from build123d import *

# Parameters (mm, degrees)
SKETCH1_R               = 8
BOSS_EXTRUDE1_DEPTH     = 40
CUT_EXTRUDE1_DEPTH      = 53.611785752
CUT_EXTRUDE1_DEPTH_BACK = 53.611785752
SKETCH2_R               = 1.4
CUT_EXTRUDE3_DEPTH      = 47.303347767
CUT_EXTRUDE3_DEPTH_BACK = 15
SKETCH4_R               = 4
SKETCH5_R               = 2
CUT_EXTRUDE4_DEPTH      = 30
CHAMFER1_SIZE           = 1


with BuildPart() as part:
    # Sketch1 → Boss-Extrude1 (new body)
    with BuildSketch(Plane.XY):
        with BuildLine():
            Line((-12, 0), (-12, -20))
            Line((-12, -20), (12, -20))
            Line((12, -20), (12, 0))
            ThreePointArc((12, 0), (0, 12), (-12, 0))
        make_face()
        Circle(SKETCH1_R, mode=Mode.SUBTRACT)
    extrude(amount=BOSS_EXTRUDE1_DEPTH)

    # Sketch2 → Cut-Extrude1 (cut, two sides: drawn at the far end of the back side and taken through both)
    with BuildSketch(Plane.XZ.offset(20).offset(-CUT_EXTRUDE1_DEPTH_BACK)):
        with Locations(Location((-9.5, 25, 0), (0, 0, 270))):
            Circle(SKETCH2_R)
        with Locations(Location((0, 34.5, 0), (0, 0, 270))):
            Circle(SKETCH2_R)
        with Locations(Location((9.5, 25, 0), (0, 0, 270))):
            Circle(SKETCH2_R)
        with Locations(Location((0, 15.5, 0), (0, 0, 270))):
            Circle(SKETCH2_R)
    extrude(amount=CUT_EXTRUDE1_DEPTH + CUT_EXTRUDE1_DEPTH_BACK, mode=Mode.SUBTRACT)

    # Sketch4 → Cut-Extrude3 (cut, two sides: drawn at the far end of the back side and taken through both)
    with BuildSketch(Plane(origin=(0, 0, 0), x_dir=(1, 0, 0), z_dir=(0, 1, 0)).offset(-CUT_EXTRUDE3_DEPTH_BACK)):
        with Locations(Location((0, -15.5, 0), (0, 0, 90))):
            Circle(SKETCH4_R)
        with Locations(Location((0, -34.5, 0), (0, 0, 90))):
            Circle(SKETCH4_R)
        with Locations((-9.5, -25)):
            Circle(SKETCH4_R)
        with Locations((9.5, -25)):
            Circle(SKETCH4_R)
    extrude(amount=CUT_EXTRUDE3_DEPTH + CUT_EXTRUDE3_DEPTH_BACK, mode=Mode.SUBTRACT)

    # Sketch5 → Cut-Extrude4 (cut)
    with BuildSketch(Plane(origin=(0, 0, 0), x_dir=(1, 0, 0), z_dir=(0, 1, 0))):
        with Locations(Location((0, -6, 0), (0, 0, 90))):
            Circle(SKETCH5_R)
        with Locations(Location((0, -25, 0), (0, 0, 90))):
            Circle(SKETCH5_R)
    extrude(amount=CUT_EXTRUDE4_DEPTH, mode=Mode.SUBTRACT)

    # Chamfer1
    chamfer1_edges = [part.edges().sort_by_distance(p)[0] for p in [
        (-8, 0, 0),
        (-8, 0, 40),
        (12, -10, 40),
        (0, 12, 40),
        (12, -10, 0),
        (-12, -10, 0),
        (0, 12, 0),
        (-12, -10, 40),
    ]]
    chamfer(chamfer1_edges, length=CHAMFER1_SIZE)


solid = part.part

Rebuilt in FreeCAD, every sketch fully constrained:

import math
import FreeCAD as App
import Part
import Sketcher

V = App.Vector


def edges_at(feature, points):
    """Names of the edges that pass closest to the given points."""
    edges = feature.Shape.Edges
    near = lambda p: min(range(len(edges)), key=lambda i: edges[i].distToShape(Part.Vertex(*p))[0])
    return sorted({f"Edge{near(p) + 1}" for p in points})

doc = App.newDocument("Part")
body = doc.addObject("PartDesign::Body", "Body")

# Sketch on XY plane
sketch1 = body.newObject("Sketcher::SketchObject", "Sketch")
sketch1.AttachmentSupport = (doc.getObject("XY_Plane"), [""])
sketch1.MapMode = "FlatFace"
sketch1.addGeometry([
    Part.LineSegment(V(-12, 0, 0), V(-12, -20, 0)),  # 0
    Part.LineSegment(V(-12, -20, 0), V(12, -20, 0)),  # 1
    Part.LineSegment(V(12, -20, 0), V(12, 0, 0)),  # 2
    Part.ArcOfCircle(Part.Circle(V(0, 0, 0), V(0, 0, 1), 12), math.radians(0), math.radians(180)),  # 3
    Part.Circle(V(0, 0, 0), V(0, 0, 1), 8),  # 4
], False)
sketch1.addConstraint([
    Sketcher.Constraint("Coincident", 0, 2, 1, 1),
    Sketcher.Constraint("Coincident", 1, 2, 2, 1),
    Sketcher.Constraint("Tangent", 2, 2, 3, 1),
    Sketcher.Constraint("Tangent", 3, 2, 0, 1),
    Sketcher.Constraint("Vertical", 0),
    Sketcher.Constraint("Horizontal", 1),
    Sketcher.Constraint("Vertical", 2),
    Sketcher.Constraint("Coincident", 3, 3, -1, 1),
    Sketcher.Constraint("Coincident", 4, 3, -1, 1),
    Sketcher.Constraint("Diameter", 4, 16.0),
    Sketcher.Constraint("Radius", 3, 12.0),
    Sketcher.Constraint("DistanceY", 0, 2, 0, 1, 20.0),
])
pad1 = body.newObject("PartDesign::Pad", "Pad")
pad1.Profile = sketch1
pad1.Length = 40

# Sketch on XZ plane
sketch2 = body.newObject("Sketcher::SketchObject", "Sketch001")
sketch2.AttachmentSupport = (doc.getObject("XZ_Plane"), [""])
sketch2.MapMode = "FlatFace"
sketch2.AttachmentOffset = App.Placement(V(0, 0, 20), App.Rotation())
sketch2.addGeometry([
    Part.Circle(V(-9.5, 25, 0), V(0, 0, 1), 1.4),
    Part.Circle(V(0, 34.5, 0), V(0, 0, 1), 1.4),
    Part.Circle(V(9.5, 25, 0), V(0, 0, 1), 1.4),
    Part.Circle(V(0, 15.5, 0), V(0, 0, 1), 1.4),
], False)
sketch2.addConstraint([
    Sketcher.Constraint("Equal", 0, 1),
    Sketcher.Constraint("Equal", 1, 2),
    Sketcher.Constraint("Equal", 2, 3),
    Sketcher.Constraint("Symmetric", 0, 3, 2, 3, -2),
    Sketcher.Constraint("PointOnObject", 1, 3, -2),
    Sketcher.Constraint("PointOnObject", 3, 3, -2),
    Sketcher.Constraint("Diameter", 0, 2.8),
    Sketcher.Constraint("DistanceY", -1, 1, 0, 3, 25.0),
    Sketcher.Constraint("DistanceX", 0, 3, 2, 3, 19.0),
    Sketcher.Constraint("DistanceY", 3, 3, 1, 3, 19.0),
    Sketcher.Constraint("DistanceY", -1, 1, 1, 3, 34.5),
])
pocket1 = body.newObject("PartDesign::Pocket", "Pocket")
pocket1.Profile = sketch2
pocket1.Type = "ThroughAll"
pocket1.Midplane = True

# Sketch on XZ plane
sketch3 = body.newObject("Sketcher::SketchObject", "Sketch002")
sketch3.AttachmentSupport = (doc.getObject("XZ_Plane"), [""])
sketch3.MapMode = "FlatFace"
sketch3.addGeometry([
    Part.Circle(V(0, 15.5, 0), V(0, 0, 1), 4),
    Part.Circle(V(0, 34.5, 0), V(0, 0, 1), 4),
    Part.Circle(V(-9.5, 25, 0), V(0, 0, 1), 4),
    Part.Circle(V(9.5, 25, 0), V(0, 0, 1), 4),
], False)
sketch3.addConstraint([
    Sketcher.Constraint("Equal", 0, 1),
    Sketcher.Constraint("Equal", 1, 2),
    Sketcher.Constraint("Equal", 2, 3),
    Sketcher.Constraint("Symmetric", 2, 3, 3, 3, -2),
    Sketcher.Constraint("PointOnObject", 0, 3, -2),
    Sketcher.Constraint("PointOnObject", 1, 3, -2),
    Sketcher.Constraint("Diameter", 0, 8.0),
    Sketcher.Constraint("DistanceY", -1, 1, 2, 3, 25.0),
    Sketcher.Constraint("DistanceY", 0, 3, 1, 3, 19.0),
    Sketcher.Constraint("DistanceX", 2, 3, 3, 3, 19.0),
    Sketcher.Constraint("DistanceY", -1, 1, 0, 3, 15.5),
])
pocket2 = body.newObject("PartDesign::Pocket", "Pocket001")
pocket2.Profile = sketch3
pocket2.Type = "TwoLengths"
pocket2.Length = 47.303348
pocket2.Length2 = 15

# Sketch on XZ plane
sketch4 = body.newObject("Sketcher::SketchObject", "Sketch003")
sketch4.AttachmentSupport = (doc.getObject("XZ_Plane"), [""])
sketch4.MapMode = "FlatFace"
sketch4.addGeometry([
    Part.Circle(V(0, 6, 0), V(0, 0, 1), 2),
    Part.Circle(V(0, 25, 0), V(0, 0, 1), 2),
], False)
sketch4.addConstraint([
    Sketcher.Constraint("Equal", 0, 1),
    Sketcher.Constraint("PointOnObject", 0, 3, -2),
    Sketcher.Constraint("PointOnObject", 1, 3, -2),
    Sketcher.Constraint("Diameter", 0, 4.0),
    Sketcher.Constraint("DistanceY", -1, 1, 0, 3, 6.0),
    Sketcher.Constraint("DistanceY", -1, 1, 1, 3, 25.0),
])
pocket3 = body.newObject("PartDesign::Pocket", "Pocket002")
pocket3.Profile = sketch4
pocket3.Length = 30
doc.recompute()

chamfer = body.newObject("PartDesign::Chamfer", "Chamfer")
chamfer.Base = (pocket3, edges_at(pocket3, [
    (-8, 0, 0),
    (-8, 0, 40),
    (12, -10, 40),
    (0, 12, 40),
    (12, -10, 0),
    (-12, -10, 0),
    (0, 12, 0),
    (-12, -10, 40),
]))
chamfer.Size = 1

doc.recompute()
